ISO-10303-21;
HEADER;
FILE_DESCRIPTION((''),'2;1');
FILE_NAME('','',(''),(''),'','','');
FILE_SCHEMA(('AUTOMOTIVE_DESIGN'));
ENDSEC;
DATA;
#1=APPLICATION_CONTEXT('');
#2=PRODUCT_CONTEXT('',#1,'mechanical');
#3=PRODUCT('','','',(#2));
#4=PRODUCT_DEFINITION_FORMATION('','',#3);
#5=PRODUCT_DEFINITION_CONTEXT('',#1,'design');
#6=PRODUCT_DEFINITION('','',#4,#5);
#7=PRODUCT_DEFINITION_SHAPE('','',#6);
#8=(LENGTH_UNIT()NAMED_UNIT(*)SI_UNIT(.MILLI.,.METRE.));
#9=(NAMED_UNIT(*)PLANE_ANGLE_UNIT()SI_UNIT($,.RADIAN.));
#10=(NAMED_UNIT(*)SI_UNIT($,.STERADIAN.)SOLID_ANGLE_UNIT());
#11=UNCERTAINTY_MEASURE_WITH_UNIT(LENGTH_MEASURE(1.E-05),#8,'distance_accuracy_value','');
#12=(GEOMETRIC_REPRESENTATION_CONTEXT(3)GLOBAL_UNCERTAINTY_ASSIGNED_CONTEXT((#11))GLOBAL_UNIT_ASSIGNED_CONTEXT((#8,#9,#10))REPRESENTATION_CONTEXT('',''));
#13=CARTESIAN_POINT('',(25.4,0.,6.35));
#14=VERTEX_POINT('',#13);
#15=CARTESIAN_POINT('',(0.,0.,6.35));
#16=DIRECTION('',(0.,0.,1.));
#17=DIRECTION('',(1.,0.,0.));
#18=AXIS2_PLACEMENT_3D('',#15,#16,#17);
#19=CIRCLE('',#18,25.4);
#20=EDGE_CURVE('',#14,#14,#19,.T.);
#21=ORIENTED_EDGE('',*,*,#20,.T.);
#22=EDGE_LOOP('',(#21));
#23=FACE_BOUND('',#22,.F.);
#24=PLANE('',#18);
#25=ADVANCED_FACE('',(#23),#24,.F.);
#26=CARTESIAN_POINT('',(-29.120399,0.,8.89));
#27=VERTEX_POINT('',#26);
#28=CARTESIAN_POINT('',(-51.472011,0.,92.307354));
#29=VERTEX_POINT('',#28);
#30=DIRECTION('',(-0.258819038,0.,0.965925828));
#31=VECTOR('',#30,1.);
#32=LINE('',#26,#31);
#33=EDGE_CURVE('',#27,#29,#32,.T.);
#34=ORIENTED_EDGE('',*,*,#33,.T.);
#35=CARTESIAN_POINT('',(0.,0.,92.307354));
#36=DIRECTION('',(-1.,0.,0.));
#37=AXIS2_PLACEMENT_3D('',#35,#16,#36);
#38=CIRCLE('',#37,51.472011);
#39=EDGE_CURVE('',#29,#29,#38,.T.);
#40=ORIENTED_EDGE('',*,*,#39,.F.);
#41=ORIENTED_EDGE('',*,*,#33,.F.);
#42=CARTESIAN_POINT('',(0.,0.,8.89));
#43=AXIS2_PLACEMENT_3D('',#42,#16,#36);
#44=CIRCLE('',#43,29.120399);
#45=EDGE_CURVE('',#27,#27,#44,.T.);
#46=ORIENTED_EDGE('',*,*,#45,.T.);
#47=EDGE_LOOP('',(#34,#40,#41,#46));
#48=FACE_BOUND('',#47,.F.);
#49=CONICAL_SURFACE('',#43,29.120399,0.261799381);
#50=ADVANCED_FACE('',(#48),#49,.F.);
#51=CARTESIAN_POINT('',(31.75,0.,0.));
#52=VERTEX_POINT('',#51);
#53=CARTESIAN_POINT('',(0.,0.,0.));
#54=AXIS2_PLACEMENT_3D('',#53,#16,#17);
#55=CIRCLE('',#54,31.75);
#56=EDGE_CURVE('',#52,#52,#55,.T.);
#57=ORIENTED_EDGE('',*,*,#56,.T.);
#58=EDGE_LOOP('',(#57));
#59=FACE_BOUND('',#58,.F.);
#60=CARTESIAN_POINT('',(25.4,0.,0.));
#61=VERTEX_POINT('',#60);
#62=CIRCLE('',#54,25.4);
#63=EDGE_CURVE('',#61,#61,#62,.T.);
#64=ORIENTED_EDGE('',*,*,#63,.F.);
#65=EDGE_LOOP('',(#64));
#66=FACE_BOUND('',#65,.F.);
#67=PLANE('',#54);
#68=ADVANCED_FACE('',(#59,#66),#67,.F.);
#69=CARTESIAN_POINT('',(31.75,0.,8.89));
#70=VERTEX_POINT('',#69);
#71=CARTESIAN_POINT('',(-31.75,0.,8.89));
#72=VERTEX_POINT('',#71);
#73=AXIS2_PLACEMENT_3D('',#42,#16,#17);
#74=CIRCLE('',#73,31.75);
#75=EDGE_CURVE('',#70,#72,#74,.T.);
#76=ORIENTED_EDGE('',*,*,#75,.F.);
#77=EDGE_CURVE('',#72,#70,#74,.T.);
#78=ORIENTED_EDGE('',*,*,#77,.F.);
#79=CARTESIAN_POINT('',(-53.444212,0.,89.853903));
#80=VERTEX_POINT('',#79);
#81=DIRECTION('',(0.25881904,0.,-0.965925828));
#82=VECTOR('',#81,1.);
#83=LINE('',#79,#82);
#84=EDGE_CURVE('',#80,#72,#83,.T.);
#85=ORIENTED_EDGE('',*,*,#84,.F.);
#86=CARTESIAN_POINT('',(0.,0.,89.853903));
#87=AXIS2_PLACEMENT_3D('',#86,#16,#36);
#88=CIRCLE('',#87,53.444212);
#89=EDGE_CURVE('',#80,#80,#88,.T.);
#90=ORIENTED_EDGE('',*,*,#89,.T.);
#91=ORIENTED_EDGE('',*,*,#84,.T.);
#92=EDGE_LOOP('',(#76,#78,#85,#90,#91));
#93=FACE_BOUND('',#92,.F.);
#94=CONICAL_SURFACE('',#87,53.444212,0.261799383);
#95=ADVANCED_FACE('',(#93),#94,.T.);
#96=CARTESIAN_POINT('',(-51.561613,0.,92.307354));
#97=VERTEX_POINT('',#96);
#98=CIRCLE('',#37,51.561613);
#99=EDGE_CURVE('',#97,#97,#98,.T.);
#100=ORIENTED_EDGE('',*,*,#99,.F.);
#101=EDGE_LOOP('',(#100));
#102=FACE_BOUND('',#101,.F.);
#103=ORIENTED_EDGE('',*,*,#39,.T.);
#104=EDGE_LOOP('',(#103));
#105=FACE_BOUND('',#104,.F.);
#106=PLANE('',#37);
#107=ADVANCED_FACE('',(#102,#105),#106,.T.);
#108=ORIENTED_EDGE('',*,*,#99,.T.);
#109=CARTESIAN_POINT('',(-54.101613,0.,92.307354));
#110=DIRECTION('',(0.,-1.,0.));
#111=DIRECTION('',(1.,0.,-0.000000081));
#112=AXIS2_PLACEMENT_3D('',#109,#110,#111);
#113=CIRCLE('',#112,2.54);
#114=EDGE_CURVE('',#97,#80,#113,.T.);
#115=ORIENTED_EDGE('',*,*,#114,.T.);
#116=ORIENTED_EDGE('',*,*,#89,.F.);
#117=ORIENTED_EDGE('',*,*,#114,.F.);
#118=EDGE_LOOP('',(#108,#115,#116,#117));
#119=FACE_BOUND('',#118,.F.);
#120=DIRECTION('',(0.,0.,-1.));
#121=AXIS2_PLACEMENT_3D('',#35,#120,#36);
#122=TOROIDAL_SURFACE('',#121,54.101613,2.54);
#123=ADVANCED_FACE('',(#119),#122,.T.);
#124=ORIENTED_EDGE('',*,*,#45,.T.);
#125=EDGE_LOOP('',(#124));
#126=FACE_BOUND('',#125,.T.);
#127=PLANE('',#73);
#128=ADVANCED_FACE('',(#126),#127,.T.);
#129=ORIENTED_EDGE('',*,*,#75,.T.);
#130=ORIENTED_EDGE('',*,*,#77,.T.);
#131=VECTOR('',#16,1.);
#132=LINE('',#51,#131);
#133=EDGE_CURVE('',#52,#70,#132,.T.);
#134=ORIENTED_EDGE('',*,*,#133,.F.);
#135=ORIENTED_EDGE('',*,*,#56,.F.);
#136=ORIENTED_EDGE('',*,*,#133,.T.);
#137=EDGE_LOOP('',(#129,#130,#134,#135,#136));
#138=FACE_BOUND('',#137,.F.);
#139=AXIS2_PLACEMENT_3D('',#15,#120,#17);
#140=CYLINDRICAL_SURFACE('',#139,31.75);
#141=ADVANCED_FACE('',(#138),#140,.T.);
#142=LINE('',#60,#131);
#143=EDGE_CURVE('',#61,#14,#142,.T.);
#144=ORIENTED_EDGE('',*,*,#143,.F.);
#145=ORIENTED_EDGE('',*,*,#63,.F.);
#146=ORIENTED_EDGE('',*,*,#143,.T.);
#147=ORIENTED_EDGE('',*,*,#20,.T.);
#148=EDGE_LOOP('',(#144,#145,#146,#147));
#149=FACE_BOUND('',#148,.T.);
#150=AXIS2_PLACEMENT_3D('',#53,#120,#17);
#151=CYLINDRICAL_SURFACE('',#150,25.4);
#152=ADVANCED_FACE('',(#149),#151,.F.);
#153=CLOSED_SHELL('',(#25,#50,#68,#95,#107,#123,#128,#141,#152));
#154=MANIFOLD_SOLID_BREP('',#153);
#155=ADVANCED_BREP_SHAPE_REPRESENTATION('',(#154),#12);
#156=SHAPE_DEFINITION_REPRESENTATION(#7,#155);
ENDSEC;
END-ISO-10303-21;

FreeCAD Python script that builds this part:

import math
import FreeCAD as App
import Part
import Sketcher
Q = App.Units.Quantity

doc = App.newDocument("Part")
body = doc.addObject("PartDesign::Body", "Body")

sketch1 = body.newObject("Sketcher::SketchObject", "Sketch")
sketch1.AttachmentSupport = (doc.getObject("XY_Plane"), [""])
sketch1.MapMode = "FlatFace"
sketch1.addGeometry([
    Part.Circle(App.Vector(0, 0, 0), App.Vector(0, 0, 1), 32),
    Part.Circle(App.Vector(0, 0, 0), App.Vector(0, 0, 1), 25),
], False)
sketch1.addConstraint([
    Sketcher.Constraint("Coincident", 0, 3, -1, 1),
    Sketcher.Constraint("Coincident", 1, 3, -1, 1),
    Sketcher.Constraint("Diameter", 1, Q("2 in")),
    Sketcher.Constraint("Diameter", 0, Q("2.5 in")),
])
pad1 = body.newObject("PartDesign::Pad", "Pad")
pad1.Profile = sketch1
pad1.Length = Q("0.25 in")

sketch2 = body.newObject("Sketcher::SketchObject", "Sketch001")
sketch2.AttachmentSupport = (doc.getObject("XY_Plane"), [""])
sketch2.MapMode = "FlatFace"
sketch2.AttachmentOffset = App.Placement(App.Vector(0, 0, 0.25 * 25.4), App.Rotation())
sketch2.addGeometry(Part.Circle(App.Vector(0, 0, 0), App.Vector(0, 0, 1), 32), False)
sketch2.addConstraint([
    Sketcher.Constraint("Coincident", 0, 3, -1, 1),
    Sketcher.Constraint("Diameter", 0, Q("2.5 in")),
])
pad2 = body.newObject("PartDesign::Pad", "Pad001")
pad2.Profile = sketch2
pad2.Length = Q("0.1 in")

sketch3 = body.newObject("Sketcher::SketchObject", "Sketch002")
sketch3.AttachmentSupport = (doc.getObject("XZ_Plane"), [""])
sketch3.MapMode = "FlatFace"
sketch3.addGeometry([
    Part.LineSegment(App.Vector(-53.44, 89.85, 0), App.Vector(-31.75, 8.89, 0)),
    Part.LineSegment(App.Vector(-31.75, 8.89, 0), App.Vector(-29.12, 8.89, 0)),
    Part.LineSegment(App.Vector(-29.12, 8.89, 0), App.Vector(-51.47, 92.31, 0)),
    Part.LineSegment(App.Vector(-51.47, 92.31, 0), App.Vector(-51.56, 92.31, 0)),
    Part.ArcOfCircle(Part.Circle(App.Vector(-54.1, 92.31, 0), App.Vector(0, 0, 1), 2.54), math.radians(0), math.radians(285)),
], False)
sketch3.addConstraint([
    Sketcher.Constraint("Coincident", 0, 2, 1, 1),
    Sketcher.Constraint("Coincident", 1, 2, 2, 1),
    Sketcher.Constraint("Coincident", 2, 2, 3, 1),
    Sketcher.Constraint("Coincident", 3, 2, 4, 1),
    Sketcher.Constraint("Coincident", 4, 2, 0, 1),
    Sketcher.Constraint("Horizontal", 1),
    Sketcher.Constraint("Horizontal", 3),
    Sketcher.Constraint("Parallel", 0, 2),
    Sketcher.Constraint("Horizontal", 4, 3, 2, 2),
    Sketcher.Constraint("Radius", 4, Q("0.1 in")),
    Sketcher.Constraint("Angle", 0, Q("-75 deg")),
    Sketcher.Constraint("Distance", 0, Q("3.3 in")),
    Sketcher.Constraint("Distance", 2, Q("3.4 in")),
    Sketcher.Constraint("DistanceX", 0, 2, -1, 1, Q("1.25 in")),
    Sketcher.Constraint("DistanceY", -1, 1, 0, 2, Q("0.35 in")),
    Sketcher.Constraint("DistanceX", 1, 1, 1, 2, 2.629601),
])
revolution = body.newObject("PartDesign::Revolution", "Revolution")
revolution.Profile = sketch3
revolution.ReferenceAxis = (sketch3, ["V_Axis"])
revolution.Angle = 360

doc.recompute()
